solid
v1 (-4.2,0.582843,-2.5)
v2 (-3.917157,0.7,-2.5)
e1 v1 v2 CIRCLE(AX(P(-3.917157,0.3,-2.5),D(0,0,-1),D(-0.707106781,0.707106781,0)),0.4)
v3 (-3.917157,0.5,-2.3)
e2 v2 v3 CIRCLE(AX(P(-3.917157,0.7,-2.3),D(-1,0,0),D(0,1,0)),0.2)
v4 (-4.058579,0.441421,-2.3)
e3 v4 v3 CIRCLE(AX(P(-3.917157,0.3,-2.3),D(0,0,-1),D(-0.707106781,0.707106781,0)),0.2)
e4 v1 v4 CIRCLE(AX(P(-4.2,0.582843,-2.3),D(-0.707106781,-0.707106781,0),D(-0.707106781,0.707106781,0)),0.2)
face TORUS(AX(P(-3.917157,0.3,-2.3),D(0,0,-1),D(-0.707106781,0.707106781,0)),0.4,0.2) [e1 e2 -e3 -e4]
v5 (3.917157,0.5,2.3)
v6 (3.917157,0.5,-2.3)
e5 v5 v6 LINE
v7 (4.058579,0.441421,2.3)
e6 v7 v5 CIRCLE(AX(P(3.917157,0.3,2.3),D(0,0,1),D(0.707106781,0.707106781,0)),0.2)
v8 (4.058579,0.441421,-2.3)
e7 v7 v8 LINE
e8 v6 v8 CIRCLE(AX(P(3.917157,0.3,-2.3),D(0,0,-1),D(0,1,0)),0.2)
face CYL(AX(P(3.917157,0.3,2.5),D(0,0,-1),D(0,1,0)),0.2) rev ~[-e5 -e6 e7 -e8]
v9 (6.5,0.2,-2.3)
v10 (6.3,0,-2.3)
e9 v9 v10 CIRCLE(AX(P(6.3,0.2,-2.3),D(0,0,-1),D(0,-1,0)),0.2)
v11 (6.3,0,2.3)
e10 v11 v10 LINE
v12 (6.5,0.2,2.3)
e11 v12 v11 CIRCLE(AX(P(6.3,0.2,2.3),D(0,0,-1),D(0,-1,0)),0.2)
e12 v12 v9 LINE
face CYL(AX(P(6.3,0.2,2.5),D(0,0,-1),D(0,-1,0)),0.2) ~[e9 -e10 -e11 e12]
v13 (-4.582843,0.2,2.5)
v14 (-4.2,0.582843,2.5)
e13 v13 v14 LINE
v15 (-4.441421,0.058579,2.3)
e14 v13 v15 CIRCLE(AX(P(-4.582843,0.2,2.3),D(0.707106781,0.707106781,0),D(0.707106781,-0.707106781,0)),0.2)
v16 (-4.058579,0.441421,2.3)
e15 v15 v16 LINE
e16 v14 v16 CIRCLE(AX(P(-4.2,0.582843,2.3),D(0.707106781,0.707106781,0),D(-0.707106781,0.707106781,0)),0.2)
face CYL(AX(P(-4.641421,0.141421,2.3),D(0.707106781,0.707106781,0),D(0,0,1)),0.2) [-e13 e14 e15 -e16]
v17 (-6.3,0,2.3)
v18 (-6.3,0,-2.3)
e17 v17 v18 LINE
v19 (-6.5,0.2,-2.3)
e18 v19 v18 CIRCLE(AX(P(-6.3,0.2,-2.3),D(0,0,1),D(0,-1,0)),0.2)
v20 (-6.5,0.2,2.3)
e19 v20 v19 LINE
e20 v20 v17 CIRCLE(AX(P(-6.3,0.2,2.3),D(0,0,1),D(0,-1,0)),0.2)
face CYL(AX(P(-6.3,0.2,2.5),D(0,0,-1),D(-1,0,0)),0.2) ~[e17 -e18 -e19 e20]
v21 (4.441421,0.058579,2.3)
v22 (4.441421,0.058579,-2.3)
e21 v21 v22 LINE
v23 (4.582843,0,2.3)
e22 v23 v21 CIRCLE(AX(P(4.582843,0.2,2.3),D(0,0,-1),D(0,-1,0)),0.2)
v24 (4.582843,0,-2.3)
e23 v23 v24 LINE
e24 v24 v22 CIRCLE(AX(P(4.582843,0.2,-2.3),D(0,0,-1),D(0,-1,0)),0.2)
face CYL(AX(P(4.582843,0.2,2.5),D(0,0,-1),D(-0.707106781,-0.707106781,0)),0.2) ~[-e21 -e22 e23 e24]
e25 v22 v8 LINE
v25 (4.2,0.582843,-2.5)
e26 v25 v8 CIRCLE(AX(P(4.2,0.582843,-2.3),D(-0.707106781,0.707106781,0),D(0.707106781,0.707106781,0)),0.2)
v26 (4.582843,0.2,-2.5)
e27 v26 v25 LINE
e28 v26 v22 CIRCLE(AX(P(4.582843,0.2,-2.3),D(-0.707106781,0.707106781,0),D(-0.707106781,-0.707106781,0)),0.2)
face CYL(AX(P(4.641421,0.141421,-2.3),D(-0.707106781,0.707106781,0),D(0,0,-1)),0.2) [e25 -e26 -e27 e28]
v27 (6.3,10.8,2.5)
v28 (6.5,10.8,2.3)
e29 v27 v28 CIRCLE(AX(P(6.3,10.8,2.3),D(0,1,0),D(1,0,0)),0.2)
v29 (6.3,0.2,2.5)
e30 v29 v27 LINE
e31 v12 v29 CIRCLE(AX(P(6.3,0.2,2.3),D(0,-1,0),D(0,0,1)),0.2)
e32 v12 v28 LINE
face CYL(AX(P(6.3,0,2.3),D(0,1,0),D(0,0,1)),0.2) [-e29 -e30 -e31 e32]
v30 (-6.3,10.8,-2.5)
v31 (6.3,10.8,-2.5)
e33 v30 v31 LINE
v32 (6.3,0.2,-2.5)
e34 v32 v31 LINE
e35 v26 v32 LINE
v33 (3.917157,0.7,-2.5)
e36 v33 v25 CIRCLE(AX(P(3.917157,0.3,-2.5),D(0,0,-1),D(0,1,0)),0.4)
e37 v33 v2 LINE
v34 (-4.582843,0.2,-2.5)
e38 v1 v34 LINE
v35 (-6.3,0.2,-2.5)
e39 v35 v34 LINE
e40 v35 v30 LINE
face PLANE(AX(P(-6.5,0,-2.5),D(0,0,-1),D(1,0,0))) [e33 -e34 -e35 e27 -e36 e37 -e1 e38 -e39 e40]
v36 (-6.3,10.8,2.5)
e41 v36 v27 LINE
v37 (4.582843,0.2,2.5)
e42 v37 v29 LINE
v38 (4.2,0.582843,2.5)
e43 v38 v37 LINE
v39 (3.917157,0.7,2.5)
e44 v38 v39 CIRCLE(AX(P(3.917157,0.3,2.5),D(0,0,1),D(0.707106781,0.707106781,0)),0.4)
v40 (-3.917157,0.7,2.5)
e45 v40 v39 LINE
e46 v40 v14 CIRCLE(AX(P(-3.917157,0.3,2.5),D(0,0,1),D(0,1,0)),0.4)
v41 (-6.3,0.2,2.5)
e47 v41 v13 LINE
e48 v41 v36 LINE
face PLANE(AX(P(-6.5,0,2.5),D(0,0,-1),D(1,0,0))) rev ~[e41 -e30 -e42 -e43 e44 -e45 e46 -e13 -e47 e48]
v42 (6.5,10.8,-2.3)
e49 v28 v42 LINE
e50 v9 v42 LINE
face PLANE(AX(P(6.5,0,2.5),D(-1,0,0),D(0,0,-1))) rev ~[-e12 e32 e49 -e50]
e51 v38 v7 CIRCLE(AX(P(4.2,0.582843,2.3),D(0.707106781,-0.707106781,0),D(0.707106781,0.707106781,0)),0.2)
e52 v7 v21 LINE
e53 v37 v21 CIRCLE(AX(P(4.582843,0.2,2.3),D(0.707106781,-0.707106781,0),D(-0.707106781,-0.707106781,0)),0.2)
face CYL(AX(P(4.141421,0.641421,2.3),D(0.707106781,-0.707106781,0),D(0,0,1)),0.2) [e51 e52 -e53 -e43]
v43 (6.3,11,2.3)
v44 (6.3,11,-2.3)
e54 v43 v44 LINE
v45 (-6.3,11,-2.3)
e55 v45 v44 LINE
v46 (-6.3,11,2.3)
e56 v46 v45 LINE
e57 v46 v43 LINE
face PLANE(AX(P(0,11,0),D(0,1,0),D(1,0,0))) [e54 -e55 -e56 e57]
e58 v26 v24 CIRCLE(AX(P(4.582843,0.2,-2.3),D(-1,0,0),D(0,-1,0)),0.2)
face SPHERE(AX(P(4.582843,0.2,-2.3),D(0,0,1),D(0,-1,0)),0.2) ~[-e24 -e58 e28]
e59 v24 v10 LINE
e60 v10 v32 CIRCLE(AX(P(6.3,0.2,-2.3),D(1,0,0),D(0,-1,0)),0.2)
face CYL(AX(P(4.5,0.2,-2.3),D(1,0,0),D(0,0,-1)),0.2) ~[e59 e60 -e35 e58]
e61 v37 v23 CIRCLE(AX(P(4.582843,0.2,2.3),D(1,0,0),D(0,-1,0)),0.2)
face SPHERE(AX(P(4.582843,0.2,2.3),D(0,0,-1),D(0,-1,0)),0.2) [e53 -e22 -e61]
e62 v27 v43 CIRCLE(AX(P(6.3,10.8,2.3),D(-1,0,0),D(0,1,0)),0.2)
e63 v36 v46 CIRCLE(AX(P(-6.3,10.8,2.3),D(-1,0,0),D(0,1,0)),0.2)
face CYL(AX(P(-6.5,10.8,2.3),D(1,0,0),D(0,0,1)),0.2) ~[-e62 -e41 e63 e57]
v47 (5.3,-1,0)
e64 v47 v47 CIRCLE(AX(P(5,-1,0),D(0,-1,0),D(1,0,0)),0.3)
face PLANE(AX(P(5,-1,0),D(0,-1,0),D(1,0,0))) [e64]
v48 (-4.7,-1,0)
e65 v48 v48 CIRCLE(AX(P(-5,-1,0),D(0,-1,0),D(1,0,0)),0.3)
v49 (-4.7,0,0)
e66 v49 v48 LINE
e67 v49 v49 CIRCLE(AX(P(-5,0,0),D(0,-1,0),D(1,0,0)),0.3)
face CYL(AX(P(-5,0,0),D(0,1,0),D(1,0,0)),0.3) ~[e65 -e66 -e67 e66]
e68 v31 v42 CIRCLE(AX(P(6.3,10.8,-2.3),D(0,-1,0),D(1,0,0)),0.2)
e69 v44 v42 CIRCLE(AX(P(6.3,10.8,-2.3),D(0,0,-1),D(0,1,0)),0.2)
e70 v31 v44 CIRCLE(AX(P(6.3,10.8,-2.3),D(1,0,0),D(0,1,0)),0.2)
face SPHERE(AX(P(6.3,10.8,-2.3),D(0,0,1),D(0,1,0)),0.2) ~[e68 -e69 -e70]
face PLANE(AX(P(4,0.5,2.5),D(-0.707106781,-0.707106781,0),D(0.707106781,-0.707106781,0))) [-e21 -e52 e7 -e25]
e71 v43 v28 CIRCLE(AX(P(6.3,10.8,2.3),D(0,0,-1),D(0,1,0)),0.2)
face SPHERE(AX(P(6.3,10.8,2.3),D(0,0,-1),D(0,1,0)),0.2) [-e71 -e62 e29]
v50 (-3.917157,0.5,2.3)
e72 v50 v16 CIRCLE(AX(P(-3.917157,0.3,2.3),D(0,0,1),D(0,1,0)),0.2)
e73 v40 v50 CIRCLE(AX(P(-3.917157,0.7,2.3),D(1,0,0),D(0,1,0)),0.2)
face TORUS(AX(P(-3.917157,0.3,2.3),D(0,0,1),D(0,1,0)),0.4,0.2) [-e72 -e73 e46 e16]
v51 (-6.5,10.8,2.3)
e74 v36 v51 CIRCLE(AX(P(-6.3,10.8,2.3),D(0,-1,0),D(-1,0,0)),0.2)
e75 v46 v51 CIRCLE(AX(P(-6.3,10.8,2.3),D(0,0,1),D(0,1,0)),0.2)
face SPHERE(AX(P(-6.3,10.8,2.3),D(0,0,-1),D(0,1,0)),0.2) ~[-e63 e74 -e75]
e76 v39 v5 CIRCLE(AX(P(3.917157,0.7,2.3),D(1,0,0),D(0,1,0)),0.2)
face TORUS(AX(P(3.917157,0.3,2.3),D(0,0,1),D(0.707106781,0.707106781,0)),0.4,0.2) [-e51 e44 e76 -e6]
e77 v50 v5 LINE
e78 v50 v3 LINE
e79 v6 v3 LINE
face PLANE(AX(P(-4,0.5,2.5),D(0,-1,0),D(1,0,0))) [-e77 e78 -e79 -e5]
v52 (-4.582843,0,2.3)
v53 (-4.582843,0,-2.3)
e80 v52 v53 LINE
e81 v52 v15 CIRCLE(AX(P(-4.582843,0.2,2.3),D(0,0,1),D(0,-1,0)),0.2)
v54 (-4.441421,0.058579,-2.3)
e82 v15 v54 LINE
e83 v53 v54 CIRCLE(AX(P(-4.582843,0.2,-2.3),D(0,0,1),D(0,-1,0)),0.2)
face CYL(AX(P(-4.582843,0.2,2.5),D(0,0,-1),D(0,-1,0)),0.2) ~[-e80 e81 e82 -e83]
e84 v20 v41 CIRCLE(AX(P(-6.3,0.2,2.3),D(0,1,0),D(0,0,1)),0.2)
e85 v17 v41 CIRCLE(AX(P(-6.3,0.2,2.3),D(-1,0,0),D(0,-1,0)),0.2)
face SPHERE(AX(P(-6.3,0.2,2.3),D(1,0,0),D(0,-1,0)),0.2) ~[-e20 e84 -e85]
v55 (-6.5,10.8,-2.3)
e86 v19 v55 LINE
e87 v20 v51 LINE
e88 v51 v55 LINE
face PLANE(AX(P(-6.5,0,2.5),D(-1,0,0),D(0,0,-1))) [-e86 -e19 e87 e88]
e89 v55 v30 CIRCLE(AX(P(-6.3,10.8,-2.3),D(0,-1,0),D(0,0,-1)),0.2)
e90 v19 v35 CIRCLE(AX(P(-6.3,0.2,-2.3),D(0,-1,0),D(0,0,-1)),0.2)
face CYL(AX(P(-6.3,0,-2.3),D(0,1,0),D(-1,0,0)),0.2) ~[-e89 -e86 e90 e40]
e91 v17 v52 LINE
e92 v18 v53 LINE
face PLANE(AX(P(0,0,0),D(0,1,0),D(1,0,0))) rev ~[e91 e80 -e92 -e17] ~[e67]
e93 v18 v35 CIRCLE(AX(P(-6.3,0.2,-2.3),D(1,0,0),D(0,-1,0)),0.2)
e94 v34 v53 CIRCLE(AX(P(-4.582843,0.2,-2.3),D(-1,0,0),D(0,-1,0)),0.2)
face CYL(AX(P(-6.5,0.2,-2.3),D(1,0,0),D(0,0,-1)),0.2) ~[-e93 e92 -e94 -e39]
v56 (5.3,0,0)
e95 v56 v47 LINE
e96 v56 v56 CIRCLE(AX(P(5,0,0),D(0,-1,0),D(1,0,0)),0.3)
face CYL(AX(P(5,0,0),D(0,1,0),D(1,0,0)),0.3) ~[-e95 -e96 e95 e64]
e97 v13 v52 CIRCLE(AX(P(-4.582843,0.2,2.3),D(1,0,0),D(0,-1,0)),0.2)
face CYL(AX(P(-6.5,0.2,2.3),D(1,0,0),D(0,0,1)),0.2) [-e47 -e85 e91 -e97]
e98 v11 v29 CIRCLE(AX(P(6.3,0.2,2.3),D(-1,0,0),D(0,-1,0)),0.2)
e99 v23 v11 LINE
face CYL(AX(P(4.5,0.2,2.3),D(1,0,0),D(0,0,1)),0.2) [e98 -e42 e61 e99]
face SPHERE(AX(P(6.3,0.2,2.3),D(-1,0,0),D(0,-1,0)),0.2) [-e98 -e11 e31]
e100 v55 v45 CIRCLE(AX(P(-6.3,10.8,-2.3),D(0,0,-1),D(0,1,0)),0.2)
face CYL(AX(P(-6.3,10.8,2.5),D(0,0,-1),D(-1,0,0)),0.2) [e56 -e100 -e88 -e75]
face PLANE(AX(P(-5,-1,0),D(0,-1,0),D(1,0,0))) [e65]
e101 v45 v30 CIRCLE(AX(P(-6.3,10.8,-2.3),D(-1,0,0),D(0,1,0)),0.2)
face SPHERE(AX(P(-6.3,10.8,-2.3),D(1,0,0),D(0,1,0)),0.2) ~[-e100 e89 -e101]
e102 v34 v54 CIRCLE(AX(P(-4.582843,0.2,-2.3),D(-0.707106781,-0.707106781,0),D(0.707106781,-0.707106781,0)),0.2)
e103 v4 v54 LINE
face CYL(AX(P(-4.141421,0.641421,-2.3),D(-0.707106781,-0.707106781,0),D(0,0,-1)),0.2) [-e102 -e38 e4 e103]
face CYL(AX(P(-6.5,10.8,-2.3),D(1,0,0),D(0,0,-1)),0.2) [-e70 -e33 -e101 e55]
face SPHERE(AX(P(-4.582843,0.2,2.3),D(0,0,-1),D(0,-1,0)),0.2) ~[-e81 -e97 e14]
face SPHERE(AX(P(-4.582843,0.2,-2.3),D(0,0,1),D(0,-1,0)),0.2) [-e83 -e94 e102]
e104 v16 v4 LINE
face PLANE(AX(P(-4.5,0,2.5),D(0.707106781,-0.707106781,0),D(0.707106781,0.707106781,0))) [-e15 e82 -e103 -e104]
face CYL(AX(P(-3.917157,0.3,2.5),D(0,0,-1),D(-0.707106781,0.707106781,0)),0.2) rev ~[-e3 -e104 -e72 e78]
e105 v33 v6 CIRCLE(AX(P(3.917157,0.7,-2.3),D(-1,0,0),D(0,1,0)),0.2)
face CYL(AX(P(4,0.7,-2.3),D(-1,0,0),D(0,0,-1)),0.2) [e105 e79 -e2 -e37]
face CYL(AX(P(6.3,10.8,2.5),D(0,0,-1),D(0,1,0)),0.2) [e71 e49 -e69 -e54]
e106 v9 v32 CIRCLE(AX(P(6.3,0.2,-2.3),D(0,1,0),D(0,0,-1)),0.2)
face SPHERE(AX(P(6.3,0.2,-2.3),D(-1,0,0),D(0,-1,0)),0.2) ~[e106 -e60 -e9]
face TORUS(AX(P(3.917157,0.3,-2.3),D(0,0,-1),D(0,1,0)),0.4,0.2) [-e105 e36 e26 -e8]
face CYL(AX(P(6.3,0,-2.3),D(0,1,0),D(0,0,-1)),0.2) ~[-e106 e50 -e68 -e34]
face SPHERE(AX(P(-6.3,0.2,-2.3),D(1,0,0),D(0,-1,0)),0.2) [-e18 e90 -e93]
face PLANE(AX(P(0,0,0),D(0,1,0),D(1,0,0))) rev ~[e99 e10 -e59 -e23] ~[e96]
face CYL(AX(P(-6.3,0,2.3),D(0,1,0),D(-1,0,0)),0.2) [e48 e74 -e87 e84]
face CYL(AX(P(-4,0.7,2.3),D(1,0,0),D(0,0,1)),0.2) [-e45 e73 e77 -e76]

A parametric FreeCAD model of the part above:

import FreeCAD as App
import Part
import Sketcher
Q = App.Units.Quantity


def edges_at(feature, points):
    """Names of the edges that pass closest to the given points."""
    edges = feature.Shape.Edges
    near = lambda p: min(range(len(edges)), key=lambda i: edges[i].distToShape(Part.Vertex(*p))[0])
    return sorted({f"Edge{near(p) + 1}" for p in points})

doc = App.newDocument("Part")
body = doc.addObject("PartDesign::Body", "Body")

# Sketch on XZ plane
sketch1 = body.newObject("Sketcher::SketchObject", "Sketch")
sketch1.AttachmentSupport = (doc.getObject("XZ_Plane"), [""])
sketch1.MapMode = "FlatFace"
sketch1.addGeometry([
    Part.LineSegment(App.Vector(-6.5, -2.5, 0), App.Vector(-6.5, 2.5, 0)),
    Part.LineSegment(App.Vector(-6.5, 2.5, 0), App.Vector(6.5, 2.5, 0)),
    Part.LineSegment(App.Vector(6.5, 2.5, 0), App.Vector(6.5, -2.5, 0)),
    Part.LineSegment(App.Vector(6.5, -2.5, 0), App.Vector(-6.5, -2.5, 0)),
], False)
sketch1.addConstraint([
    Sketcher.Constraint("Coincident", 0, 2, 1, 1),
    Sketcher.Constraint("Coincident", 1, 2, 2, 1),
    Sketcher.Constraint("Coincident", 2, 2, 3, 1),
    Sketcher.Constraint("Coincident", 3, 2, 0, 1),
    Sketcher.Constraint("Vertical", 0),
    Sketcher.Constraint("Horizontal", 1),
    Sketcher.Constraint("Vertical", 2),
    Sketcher.Constraint("Horizontal", 3),
    Sketcher.Constraint("Symmetric", 0, 2, 2, 2, -1, 1),
    Sketcher.Constraint("DistanceX", 1, 1, 1, 2, Q("13 mm")),
    Sketcher.Constraint("DistanceY", 0, 1, 0, 2, Q("5 mm")),
])
pad1 = body.newObject("PartDesign::Pad", "Pad")
pad1.Profile = sketch1
pad1.Length = 11
pad1.Reversed = True

# Sketch on XY plane
sketch2 = body.newObject("Sketcher::SketchObject", "Sketch001")
sketch2.AttachmentSupport = (doc.getObject("XY_Plane"), [""])
sketch2.MapMode = "FlatFace"
sketch2.AttachmentOffset = App.Placement(App.Vector(0, 0, 2.5), App.Rotation())
sketch2.addGeometry([
    Part.LineSegment(App.Vector(-4, 0.5, 0), App.Vector(-4.5, 0, 0)),  # 0
    Part.LineSegment(App.Vector(-4.5, 0, 0), App.Vector(-4.5, -1.5, 0)),  # 1
    Part.LineSegment(App.Vector(-4.5, -1.5, 0), App.Vector(4.5, -1.5, 0)),  # 2
    Part.LineSegment(App.Vector(4.5, -1.5, 0), App.Vector(4.5, 0, 0)),  # 3
    Part.LineSegment(App.Vector(4.5, 0, 0), App.Vector(4, 0.5, 0)),  # 4
    Part.LineSegment(App.Vector(4, 0.5, 0), App.Vector(-4, 0.5, 0)),  # 5
], False)
sketch2.addConstraint([
    Sketcher.Constraint("Coincident", 0, 2, 1, 1),
    Sketcher.Constraint("Coincident", 1, 2, 2, 1),
    Sketcher.Constraint("Coincident", 2, 2, 3, 1),
    Sketcher.Constraint("Coincident", 3, 2, 4, 1),
    Sketcher.Constraint("Coincident", 4, 2, 5, 1),
    Sketcher.Constraint("Coincident", 5, 2, 0, 1),
    Sketcher.Constraint("Vertical", 1),
    Sketcher.Constraint("Horizontal", 2),
    Sketcher.Constraint("Vertical", 3),
    Sketcher.Constraint("Horizontal", 5),
    Sketcher.Constraint("Symmetric", 0, 2, 3, 2, -1, 1),
    Sketcher.Constraint("PointOnObject", 0, 2, -1),
    Sketcher.Constraint("Perpendicular", 0, 4),
    Sketcher.Constraint("Equal", 0, 4),
    Sketcher.Constraint("DistanceX", 2, 1, 2, 2, Q("9 mm")),
    Sketcher.Constraint("DistanceX", 5, 2, 5, 1, Q("8 mm")),
    Sketcher.Constraint("DistanceY", 1, 2, 1, 1, Q("1.5 mm")),
])
pocket1 = body.newObject("PartDesign::Pocket", "Pocket")
pocket1.Profile = sketch2
pocket1.Type = "ThroughAll"

# Sketch on XZ plane
sketch3 = body.newObject("Sketcher::SketchObject", "Sketch002")
sketch3.AttachmentSupport = (doc.getObject("XZ_Plane"), [""])
sketch3.MapMode = "FlatFace"
sketch3.addGeometry([
    Part.Circle(App.Vector(5, 0, 0), App.Vector(0, 0, 1), 0.3),
    Part.Circle(App.Vector(-5, 0, 0), App.Vector(0, 0, 1), 0.3),
], False)
sketch3.addConstraint([
    Sketcher.Constraint("Equal", 0, 1),
    Sketcher.Constraint("Symmetric", 0, 3, 1, 3, -1, 1),
    Sketcher.Constraint("PointOnObject", 0, 3, -1),
    Sketcher.Constraint("Diameter", 0, Q("0.6 mm")),
    Sketcher.Constraint("DistanceX", -1, 1, 0, 3, Q("5 mm")),
])
pad2 = body.newObject("PartDesign::Pad", "Pad001")
pad2.Profile = sketch3
pad2.Length = 1
doc.recompute()

fillet = body.newObject("PartDesign::Fillet", "Fillet")
fillet.Base = (pad2, edges_at(pad2, [
    (6.5, 11, 0),
    (0, 11, -2.5),
    (-5.5, 0, -2.5),
    (5.5, 0, 2.5),
    (4.25, 0.25, 2.5),
    (0, 0.5, 2.5),
    (-4.25, 0.25, 2.5),
    (-4.25, 0.25, -2.5),
    (-4.5, 0, 0),
    (0, 0.5, -2.5),
    (-4, 0.5, 0),
    (4.25, 0.25, -2.5),
    (4, 0.5, 0),
    (4.5, 0, 0),
    (-6.5, 11, 0),
    (5.5, 0, -2.5),
    (6.5, 0, 0),
    (-5.5, 0, 2.5),
    (-6.5, 0, 0),
    (0, 11, 2.5),
    (-6.5, 5.5, -2.5),
    (6.5, 5.5, -2.5),
    (6.5, 5.5, 2.5),
    (-6.5, 5.5, 2.5),
]))
fillet.Radius = 0.2

doc.recompute()
